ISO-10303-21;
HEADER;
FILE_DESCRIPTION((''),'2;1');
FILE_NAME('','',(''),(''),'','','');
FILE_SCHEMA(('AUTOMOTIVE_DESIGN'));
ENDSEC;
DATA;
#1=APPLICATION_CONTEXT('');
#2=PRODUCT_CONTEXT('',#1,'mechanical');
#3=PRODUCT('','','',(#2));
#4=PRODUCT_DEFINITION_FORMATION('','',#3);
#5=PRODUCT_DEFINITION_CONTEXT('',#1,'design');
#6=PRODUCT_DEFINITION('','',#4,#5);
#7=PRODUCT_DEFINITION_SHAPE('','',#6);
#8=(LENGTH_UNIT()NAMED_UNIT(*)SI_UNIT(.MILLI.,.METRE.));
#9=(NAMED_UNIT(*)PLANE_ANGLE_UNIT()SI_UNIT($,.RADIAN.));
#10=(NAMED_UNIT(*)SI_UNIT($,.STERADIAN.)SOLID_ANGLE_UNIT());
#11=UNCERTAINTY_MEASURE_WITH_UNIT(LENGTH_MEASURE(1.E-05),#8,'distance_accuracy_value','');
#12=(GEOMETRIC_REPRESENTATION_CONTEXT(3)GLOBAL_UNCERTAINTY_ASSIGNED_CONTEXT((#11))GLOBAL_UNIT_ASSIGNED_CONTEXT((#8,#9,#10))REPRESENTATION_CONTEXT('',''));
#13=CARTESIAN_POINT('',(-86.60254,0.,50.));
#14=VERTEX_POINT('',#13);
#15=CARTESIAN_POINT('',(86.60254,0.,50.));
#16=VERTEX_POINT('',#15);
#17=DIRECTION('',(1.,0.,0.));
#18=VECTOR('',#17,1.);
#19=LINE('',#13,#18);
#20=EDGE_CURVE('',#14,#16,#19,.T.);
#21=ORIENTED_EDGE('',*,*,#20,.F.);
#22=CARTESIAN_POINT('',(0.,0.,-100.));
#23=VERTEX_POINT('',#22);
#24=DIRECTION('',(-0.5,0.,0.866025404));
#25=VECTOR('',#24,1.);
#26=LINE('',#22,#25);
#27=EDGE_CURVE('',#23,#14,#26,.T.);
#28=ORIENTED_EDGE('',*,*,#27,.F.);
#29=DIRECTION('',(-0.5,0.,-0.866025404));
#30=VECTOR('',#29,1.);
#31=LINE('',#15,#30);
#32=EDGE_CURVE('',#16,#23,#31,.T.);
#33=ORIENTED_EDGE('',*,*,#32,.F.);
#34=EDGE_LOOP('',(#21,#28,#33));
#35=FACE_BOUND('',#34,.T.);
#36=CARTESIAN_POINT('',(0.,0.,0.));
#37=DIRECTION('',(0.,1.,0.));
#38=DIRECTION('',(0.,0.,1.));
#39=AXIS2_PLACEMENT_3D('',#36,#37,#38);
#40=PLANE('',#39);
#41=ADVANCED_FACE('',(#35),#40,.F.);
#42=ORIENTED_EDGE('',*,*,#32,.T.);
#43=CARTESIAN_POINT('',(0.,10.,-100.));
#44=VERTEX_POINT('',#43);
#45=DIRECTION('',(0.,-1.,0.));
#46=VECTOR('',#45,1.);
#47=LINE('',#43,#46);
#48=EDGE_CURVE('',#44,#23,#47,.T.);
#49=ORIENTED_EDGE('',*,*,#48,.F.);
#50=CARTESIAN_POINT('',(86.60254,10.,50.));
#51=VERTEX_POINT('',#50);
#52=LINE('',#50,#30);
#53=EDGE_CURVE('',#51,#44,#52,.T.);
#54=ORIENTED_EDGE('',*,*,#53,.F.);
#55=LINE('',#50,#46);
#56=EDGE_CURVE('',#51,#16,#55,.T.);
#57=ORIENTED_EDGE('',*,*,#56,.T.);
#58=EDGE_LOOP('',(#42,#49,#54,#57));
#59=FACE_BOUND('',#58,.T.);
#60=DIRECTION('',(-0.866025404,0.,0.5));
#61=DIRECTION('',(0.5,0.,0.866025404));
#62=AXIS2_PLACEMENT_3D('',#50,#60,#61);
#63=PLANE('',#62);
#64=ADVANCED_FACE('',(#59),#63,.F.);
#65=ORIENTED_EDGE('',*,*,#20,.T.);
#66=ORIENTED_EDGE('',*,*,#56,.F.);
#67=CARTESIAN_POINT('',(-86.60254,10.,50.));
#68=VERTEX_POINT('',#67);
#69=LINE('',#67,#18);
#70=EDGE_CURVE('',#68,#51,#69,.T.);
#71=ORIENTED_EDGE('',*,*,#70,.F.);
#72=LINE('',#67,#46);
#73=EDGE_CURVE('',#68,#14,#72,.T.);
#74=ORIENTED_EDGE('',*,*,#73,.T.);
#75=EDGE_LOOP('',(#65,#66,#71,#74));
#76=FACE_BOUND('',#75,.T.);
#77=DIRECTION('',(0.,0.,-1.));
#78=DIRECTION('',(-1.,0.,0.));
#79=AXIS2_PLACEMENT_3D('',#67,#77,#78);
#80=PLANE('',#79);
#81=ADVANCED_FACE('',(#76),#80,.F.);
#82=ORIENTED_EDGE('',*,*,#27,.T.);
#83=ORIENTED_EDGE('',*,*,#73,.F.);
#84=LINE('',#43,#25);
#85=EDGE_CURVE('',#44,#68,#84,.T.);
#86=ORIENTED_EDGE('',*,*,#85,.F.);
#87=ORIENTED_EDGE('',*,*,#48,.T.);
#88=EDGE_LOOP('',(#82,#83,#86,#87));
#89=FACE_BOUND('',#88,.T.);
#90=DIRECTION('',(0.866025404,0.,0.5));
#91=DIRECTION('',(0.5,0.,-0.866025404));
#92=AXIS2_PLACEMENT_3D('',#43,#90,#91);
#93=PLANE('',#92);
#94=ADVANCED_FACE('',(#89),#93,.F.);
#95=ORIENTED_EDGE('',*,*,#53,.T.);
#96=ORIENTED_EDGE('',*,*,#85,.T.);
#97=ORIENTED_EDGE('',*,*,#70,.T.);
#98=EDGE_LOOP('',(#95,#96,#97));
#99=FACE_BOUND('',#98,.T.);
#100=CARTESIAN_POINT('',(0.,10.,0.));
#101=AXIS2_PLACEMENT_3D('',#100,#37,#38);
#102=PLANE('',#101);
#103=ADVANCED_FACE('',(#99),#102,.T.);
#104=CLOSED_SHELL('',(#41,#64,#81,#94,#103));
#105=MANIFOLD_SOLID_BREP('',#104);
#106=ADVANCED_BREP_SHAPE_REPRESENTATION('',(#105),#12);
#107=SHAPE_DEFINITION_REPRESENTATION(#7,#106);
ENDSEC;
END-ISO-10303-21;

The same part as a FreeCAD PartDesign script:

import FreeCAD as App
import Part
import Sketcher

V = App.Vector
Q = App.Units.Quantity

doc = App.newDocument("Part")
body = doc.addObject("PartDesign::Body", "Body")

# Sketch on XZ plane
sketch1 = body.newObject("Sketcher::SketchObject", "Sketch")
sketch1.AttachmentSupport = (doc.getObject("XZ_Plane"), [""])
sketch1.MapMode = "FlatFace"
sketch1.addGeometry([
    Part.LineSegment(V(0, -100, 0), V(-87, 50, 0)),
    Part.LineSegment(V(-87, 50, 0), V(87, 50, 0)),
    Part.LineSegment(V(87, 50, 0), V(0, -100, 0)),
], False)
sketch1.addConstraint([
    Sketcher.Constraint("Coincident", 0, 2, 1, 1),
    Sketcher.Constraint("Coincident", 1, 2, 2, 1),
    Sketcher.Constraint("Coincident", 2, 2, 0, 1),
    Sketcher.Constraint("Horizontal", 1),
    Sketcher.Constraint("PointOnObject", 2, 2, -2),
    Sketcher.Constraint("Equal", 0, 2),
    Sketcher.Constraint("Angle", 0, Q("120 deg")),
    Sketcher.Constraint("DistanceY", -1, 1, 0, 2, 50.0),
    Sketcher.Constraint("DistanceY", 2, 2, -1, 1, 100.0),
])
pad1 = body.newObject("PartDesign::Pad", "Pad")
pad1.Profile = sketch1
pad1.Length = 10
pad1.Reversed = True

doc.recompute()
